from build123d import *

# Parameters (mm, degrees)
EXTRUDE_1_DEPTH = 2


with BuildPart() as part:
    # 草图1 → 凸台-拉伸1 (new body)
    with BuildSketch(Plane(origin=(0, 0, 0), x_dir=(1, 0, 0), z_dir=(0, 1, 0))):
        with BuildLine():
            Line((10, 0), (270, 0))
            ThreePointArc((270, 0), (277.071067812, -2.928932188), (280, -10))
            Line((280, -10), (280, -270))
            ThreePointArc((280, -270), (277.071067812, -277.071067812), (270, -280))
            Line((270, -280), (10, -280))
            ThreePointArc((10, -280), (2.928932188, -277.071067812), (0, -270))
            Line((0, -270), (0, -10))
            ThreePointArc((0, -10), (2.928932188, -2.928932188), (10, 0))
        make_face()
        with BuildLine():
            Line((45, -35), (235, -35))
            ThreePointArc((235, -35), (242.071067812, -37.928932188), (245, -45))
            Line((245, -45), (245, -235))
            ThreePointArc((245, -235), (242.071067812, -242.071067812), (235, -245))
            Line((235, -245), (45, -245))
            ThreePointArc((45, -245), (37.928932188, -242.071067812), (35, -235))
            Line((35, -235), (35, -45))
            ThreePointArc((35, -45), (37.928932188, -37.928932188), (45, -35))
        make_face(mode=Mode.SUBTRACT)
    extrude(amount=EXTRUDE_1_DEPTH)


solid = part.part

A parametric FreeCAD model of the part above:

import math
import FreeCAD as App
import Part
import Sketcher

V = App.Vector
Q = App.Units.Quantity

doc = App.newDocument("Part")
params = doc.addObject("Spreadsheet::Sheet", "Params")
for row, (alias, value) in enumerate([
    ("sketch1_radius", "10 mm"),
    ("sketch1_width", "260 mm"),
    ("sketch1_width2", "190 mm"),
    ("pad1_length", "2 mm"),
], start=1):
    params.set(f"A{row}", alias)
    params.set(f"B{row}", "=" + value)
    params.setAlias(f"B{row}", alias)

body = doc.addObject("PartDesign::Body", "Body")

sketch1 = body.newObject("Sketcher::SketchObject", "Sketch")
sketch1.AttachmentSupport = (doc.getObject("XZ_Plane"), [""])
sketch1.MapMode = "FlatFace"
sketch1.addGeometry([
    Part.LineSegment(V(270, 0, 0), V(10, 0, 0)),
    Part.ArcOfCircle(Part.Circle(V(10, 10, 0), V(0, 0, 1), 10), math.radians(180), math.radians(270)),
    Part.LineSegment(V(0, 10, 0), V(0, 270, 0)),
    Part.ArcOfCircle(Part.Circle(V(10, 270, 0), V(0, 0, 1), 10), math.radians(90), math.radians(180)),
    Part.LineSegment(V(10, 280, 0), V(270, 280, 0)),
    Part.ArcOfCircle(Part.Circle(V(270, 270, 0), V(0, 0, 1), 10), math.radians(0), math.radians(90)),
    Part.LineSegment(V(280, 270, 0), V(280, 10, 0)),
    Part.ArcOfCircle(Part.Circle(V(270, 10, 0), V(0, 0, 1), 10), math.radians(-90), math.radians(0)),
    Part.LineSegment(V(45, 35, 0), V(235, 35, 0)),
    Part.ArcOfCircle(Part.Circle(V(235, 45, 0), V(0, 0, 1), 10), math.radians(-90), math.radians(0)),
    Part.LineSegment(V(245, 45, 0), V(245, 235, 0)),
    Part.ArcOfCircle(Part.Circle(V(235, 235, 0), V(0, 0, 1), 10), math.radians(0), math.radians(90)),
    Part.LineSegment(V(235, 245, 0), V(45, 245, 0)),
    Part.ArcOfCircle(Part.Circle(V(45, 235, 0), V(0, 0, 1), 10), math.radians(90), math.radians(180)),
    Part.LineSegment(V(35, 235, 0), V(35, 45, 0)),
    Part.ArcOfCircle(Part.Circle(V(45, 45, 0), V(0, 0, 1), 10), math.radians(180), math.radians(270)),
], False)
sketch1.addConstraint([
    Sketcher.Constraint("Tangent", 0, 2, 1, 2),
    Sketcher.Constraint("Tangent", 1, 1, 2, 1),
    Sketcher.Constraint("Tangent", 2, 2, 3, 2),
    Sketcher.Constraint("Tangent", 3, 1, 4, 1),
    Sketcher.Constraint("Tangent", 4, 2, 5, 2),
    Sketcher.Constraint("Tangent", 5, 1, 6, 1),
    Sketcher.Constraint("Tangent", 6, 2, 7, 2),
    Sketcher.Constraint("Tangent", 7, 1, 0, 1),
    Sketcher.Constraint("Tangent", 8, 2, 9, 1),
    Sketcher.Constraint("Tangent", 9, 2, 10, 1),
    Sketcher.Constraint("Tangent", 10, 2, 11, 1),
    Sketcher.Constraint("Tangent", 11, 2, 12, 1),
    Sketcher.Constraint("Tangent", 12, 2, 13, 1),
    Sketcher.Constraint("Tangent", 13, 2, 14, 1),
    Sketcher.Constraint("Tangent", 14, 2, 15, 1),
    Sketcher.Constraint("Tangent", 15, 2, 8, 1),
    Sketcher.Constraint("Horizontal", 0),
    Sketcher.Constraint("Vertical", 2),
    Sketcher.Constraint("Horizontal", 4),
    Sketcher.Constraint("Vertical", 6),
    Sketcher.Constraint("Horizontal", 8),
    Sketcher.Constraint("Vertical", 10),
    Sketcher.Constraint("Horizontal", 12),
    Sketcher.Constraint("Vertical", 14),
    Sketcher.Constraint("Equal", 1, 3),
    Sketcher.Constraint("Equal", 3, 5),
    Sketcher.Constraint("Equal", 5, 7),
    Sketcher.Constraint("Equal", 7, 9),
    Sketcher.Constraint("Equal", 9, 11),
    Sketcher.Constraint("Equal", 11, 13),
    Sketcher.Constraint("Equal", 13, 15),
    Sketcher.Constraint("PointOnObject", 0, 2, -1),
    Sketcher.Constraint("PointOnObject", 1, 1, -2),
    Sketcher.Constraint("Equal", 4, 2),
    Sketcher.Constraint("Equal", 12, 10),
    Sketcher.Constraint("Radius", 1, Q("10 mm")),
    Sketcher.Constraint("DistanceX", 0, 2, 0, 1, Q("260 mm")),
    Sketcher.Constraint("DistanceX", 8, 1, 8, 2, Q("190 mm")),
    Sketcher.Constraint("DistanceX", -1, 1, 9, 3, Q("235 mm")),
    Sketcher.Constraint("DistanceY", -1, 1, 9, 3, Q("45 mm")),
])
sketch1.setExpression("Constraints[35]", "Params.sketch1_radius")
sketch1.setExpression("Constraints[36]", "Params.sketch1_width")
sketch1.setExpression("Constraints[37]", "Params.sketch1_width2")
pad1 = body.newObject("PartDesign::Pad", "Pad")
pad1.Profile = sketch1
pad1.setExpression("Length", "Params.pad1_length")
pad1.Reversed = True

doc.recompute()
